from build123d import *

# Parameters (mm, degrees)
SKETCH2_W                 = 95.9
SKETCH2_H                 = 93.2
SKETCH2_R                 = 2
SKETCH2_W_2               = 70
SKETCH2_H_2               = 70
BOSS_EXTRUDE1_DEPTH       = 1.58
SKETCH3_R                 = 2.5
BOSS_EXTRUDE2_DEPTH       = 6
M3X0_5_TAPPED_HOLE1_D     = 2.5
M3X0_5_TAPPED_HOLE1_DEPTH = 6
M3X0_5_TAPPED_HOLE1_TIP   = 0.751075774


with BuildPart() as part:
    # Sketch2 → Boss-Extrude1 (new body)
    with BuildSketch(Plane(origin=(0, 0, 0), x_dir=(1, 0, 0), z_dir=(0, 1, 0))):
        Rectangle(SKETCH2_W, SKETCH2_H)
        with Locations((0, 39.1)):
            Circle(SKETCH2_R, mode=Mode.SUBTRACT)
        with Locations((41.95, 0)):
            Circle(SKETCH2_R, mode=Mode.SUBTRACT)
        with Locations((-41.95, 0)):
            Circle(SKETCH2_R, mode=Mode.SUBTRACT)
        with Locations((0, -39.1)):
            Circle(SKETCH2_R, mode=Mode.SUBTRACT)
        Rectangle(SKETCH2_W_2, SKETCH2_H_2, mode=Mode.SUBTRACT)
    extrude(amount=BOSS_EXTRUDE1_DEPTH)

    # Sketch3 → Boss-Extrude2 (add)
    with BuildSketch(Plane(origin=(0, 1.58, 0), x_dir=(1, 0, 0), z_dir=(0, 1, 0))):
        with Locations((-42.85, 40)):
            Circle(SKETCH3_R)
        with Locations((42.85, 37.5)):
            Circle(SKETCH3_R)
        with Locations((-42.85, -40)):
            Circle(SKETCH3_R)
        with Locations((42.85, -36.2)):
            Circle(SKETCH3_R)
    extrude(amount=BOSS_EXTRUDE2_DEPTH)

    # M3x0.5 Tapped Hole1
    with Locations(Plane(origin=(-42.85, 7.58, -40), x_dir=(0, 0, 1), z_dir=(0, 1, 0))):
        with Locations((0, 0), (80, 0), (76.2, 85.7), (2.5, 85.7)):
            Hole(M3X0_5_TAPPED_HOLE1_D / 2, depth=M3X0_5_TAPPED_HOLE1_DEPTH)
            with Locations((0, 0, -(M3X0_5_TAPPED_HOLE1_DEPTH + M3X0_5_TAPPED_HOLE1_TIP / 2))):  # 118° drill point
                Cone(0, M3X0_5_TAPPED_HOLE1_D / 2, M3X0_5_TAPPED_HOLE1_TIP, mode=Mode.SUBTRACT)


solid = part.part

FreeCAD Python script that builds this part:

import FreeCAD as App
import Part
import Sketcher
Q = App.Units.Quantity

doc = App.newDocument("Part")
body = doc.addObject("PartDesign::Body", "Body")

# Sketch on XZ plane
sketch1 = body.newObject("Sketcher::SketchObject", "Sketch")
sketch1.AttachmentSupport = (doc.getObject("XZ_Plane"), [""])
sketch1.MapMode = "FlatFace"
sketch1.addGeometry([
    Part.LineSegment(App.Vector(-48, -46.6, 0), App.Vector(-48, 46.6, 0)),  # 0
    Part.LineSegment(App.Vector(-48, 46.6, 0), App.Vector(48, 46.6, 0)),  # 1
    Part.LineSegment(App.Vector(48, 46.6, 0), App.Vector(48, -46.6, 0)),  # 2
    Part.LineSegment(App.Vector(48, -46.6, 0), App.Vector(-48, -46.6, 0)),  # 3
    Part.Circle(App.Vector(0, 39.1, 0), App.Vector(0, 0, 1), 2),  # 4
    Part.Circle(App.Vector(-42, 0, 0), App.Vector(0, 0, 1), 2),  # 5
    Part.LineSegment(App.Vector(35, 35, 0), App.Vector(-35, 35, 0)),  # 6
    Part.LineSegment(App.Vector(-35, 35, 0), App.Vector(-35, -35, 0)),  # 7
    Part.LineSegment(App.Vector(-35, -35, 0), App.Vector(35, -35, 0)),  # 8
    Part.LineSegment(App.Vector(35, -35, 0), App.Vector(35, 35, 0)),  # 9
    Part.Circle(App.Vector(42, 0, 0), App.Vector(0, 0, 1), 2),  # 10
    Part.Circle(App.Vector(0, -39.1, 0), App.Vector(0, 0, 1), 2),  # 11
], False)
sketch1.addConstraint([
    Sketcher.Constraint("Coincident", 0, 2, 1, 1),
    Sketcher.Constraint("Coincident", 1, 2, 2, 1),
    Sketcher.Constraint("Coincident", 2, 2, 3, 1),
    Sketcher.Constraint("Coincident", 3, 2, 0, 1),
    Sketcher.Constraint("Coincident", 6, 2, 7, 1),
    Sketcher.Constraint("Coincident", 7, 2, 8, 1),
    Sketcher.Constraint("Coincident", 8, 2, 9, 1),
    Sketcher.Constraint("Coincident", 9, 2, 6, 1),
    Sketcher.Constraint("Vertical", 0),
    Sketcher.Constraint("Horizontal", 1),
    Sketcher.Constraint("Vertical", 2),
    Sketcher.Constraint("Horizontal", 3),
    Sketcher.Constraint("Horizontal", 6),
    Sketcher.Constraint("Vertical", 7),
    Sketcher.Constraint("Horizontal", 8),
    Sketcher.Constraint("Vertical", 9),
    Sketcher.Constraint("Equal", 4, 5),
    Sketcher.Constraint("Equal", 5, 10),
    Sketcher.Constraint("Equal", 10, 11),
    Sketcher.Constraint("Symmetric", 5, 3, 10, 3, -1, 1),
    Sketcher.Constraint("Symmetric", 4, 3, 11, 3, -1, 1),
    Sketcher.Constraint("Symmetric", 0, 2, 2, 2, -1, 1),
    Sketcher.Constraint("Symmetric", 6, 2, 8, 2, -1, 1),
    Sketcher.Constraint("PointOnObject", 4, 3, -2),
    Sketcher.Constraint("PointOnObject", 5, 3, -1),
    Sketcher.Constraint("Equal", 8, 7),
    Sketcher.Constraint("Diameter", 4, Q("4 mm")),
    Sketcher.Constraint("DistanceX", 6, 2, 6, 1, Q("70 mm")),
    Sketcher.Constraint("DistanceX", 1, 1, 1, 2, Q("95.9 mm")),
    Sketcher.Constraint("DistanceY", 0, 1, 0, 2, Q("93.2 mm")),
    Sketcher.Constraint("DistanceX", 0, 2, 5, 3, Q("6 mm")),
    Sketcher.Constraint("DistanceY", -1, 1, 4, 3, Q("39.1 mm")),
])
pad1 = body.newObject("PartDesign::Pad", "Pad")
pad1.Profile = sketch1
pad1.Length = 1.58
pad1.Reversed = True

# Sketch on XZ plane
sketch2 = body.newObject("Sketcher::SketchObject", "Sketch001")
sketch2.AttachmentSupport = (doc.getObject("XZ_Plane"), [""])
sketch2.MapMode = "FlatFace"
sketch2.AttachmentOffset = App.Placement(App.Vector(0, 0, -1.58), App.Rotation())
sketch2.addGeometry([
    Part.Circle(App.Vector(-42.9, -40, 0), App.Vector(0, 0, 1), 2.5),
    Part.Circle(App.Vector(42.9, -37.5, 0), App.Vector(0, 0, 1), 2.5),
    Part.Circle(App.Vector(-42.9, 40, 0), App.Vector(0, 0, 1), 2.5),
    Part.Circle(App.Vector(42.9, 36.2, 0), App.Vector(0, 0, 1), 2.5),
], False)
sketch2.addConstraint([
    Sketcher.Constraint("Equal", 0, 1),
    Sketcher.Constraint("Equal", 1, 2),
    Sketcher.Constraint("Equal", 2, 3),
    Sketcher.Constraint("Symmetric", 0, 3, 2, 3, -1),
    Sketcher.Constraint("Vertical", 1, 3, 3, 3),
    Sketcher.Constraint("Diameter", 0, Q("5 mm")),
    Sketcher.Constraint("DistanceY", 0, 3, -1, 1, Q("40 mm")),
    Sketcher.Constraint("DistanceY", 1, 3, -1, 1, Q("37.5 mm")),
    Sketcher.Constraint("DistanceY", -1, 1, 3, 3, Q("36.2 mm")),
    Sketcher.Constraint("DistanceX", 0, 3, 1, 3, Q("85.7 mm")),
    Sketcher.Constraint("DistanceX", 0, 3, -1, 1, Q("42.85 mm")),
])
pad2 = body.newObject("PartDesign::Pad", "Pad001")
pad2.Profile = sketch2
pad2.Length = 6
pad2.Reversed = True

# Sketch on XZ plane
sketch3 = body.newObject("Sketcher::SketchObject", "Sketch002")
sketch3.AttachmentSupport = (doc.getObject("XZ_Plane"), [""])
sketch3.MapMode = "FlatFace"
sketch3.AttachmentOffset = App.Placement(App.Vector(0, 0, -7.58), App.Rotation())
sketch3.addGeometry([
    Part.Circle(App.Vector(-42.9, -40, 0), App.Vector(0, 0, 1), 1.2),
    Part.Circle(App.Vector(-42.9, 40, 0), App.Vector(0, 0, 1), 1.2),
    Part.Circle(App.Vector(42.9, 36.2, 0), App.Vector(0, 0, 1), 1.2),
    Part.Circle(App.Vector(42.9, -37.5, 0), App.Vector(0, 0, 1), 1.2),
], False)
sketch3.addConstraint([
    Sketcher.Constraint("Equal", 0, 1),
    Sketcher.Constraint("Equal", 1, 2),
    Sketcher.Constraint("Equal", 2, 3),
    Sketcher.Constraint("Symmetric", 0, 3, 1, 3, -1),
    Sketcher.Constraint("Vertical", 2, 3, 3, 3),
    Sketcher.Constraint("Diameter", 0, Q("2.5 mm")),
    Sketcher.Constraint("DistanceY", 0, 3, -1, 1, Q("40 mm")),
    Sketcher.Constraint("DistanceY", -1, 1, 2, 3, Q("36.2 mm")),
    Sketcher.Constraint("DistanceY", 3, 3, -1, 1, Q("37.5 mm")),
    Sketcher.Constraint("DistanceX", 1, 3, 2, 3, Q("85.7 mm")),
    Sketcher.Constraint("DistanceX", 0, 3, -1, 1, Q("42.85 mm")),
])
doc.recompute()
hole = body.newObject("PartDesign::Hole", "Hole")
hole.Profile = sketch3
hole.ThreadType = "None"
hole.Diameter = 2.5
hole.DepthType = "Dimension"
hole.Depth = 6
hole.DrillPoint = "Angled"
hole.DrillPointAngle = 118
hole.Reversed = True

doc.recompute()
